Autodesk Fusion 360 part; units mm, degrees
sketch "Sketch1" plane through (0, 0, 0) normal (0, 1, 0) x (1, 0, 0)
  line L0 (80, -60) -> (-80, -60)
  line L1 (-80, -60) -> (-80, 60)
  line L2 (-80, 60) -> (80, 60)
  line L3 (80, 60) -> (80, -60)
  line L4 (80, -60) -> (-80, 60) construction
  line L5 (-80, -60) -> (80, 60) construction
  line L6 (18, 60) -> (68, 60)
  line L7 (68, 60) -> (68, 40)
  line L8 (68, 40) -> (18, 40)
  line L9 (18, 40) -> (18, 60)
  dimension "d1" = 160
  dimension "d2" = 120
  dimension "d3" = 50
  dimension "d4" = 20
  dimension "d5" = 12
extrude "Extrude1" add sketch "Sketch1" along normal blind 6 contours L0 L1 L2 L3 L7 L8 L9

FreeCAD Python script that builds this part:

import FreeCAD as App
import Part
import Sketcher

V = App.Vector

doc = App.newDocument("Part")
body = doc.addObject("PartDesign::Body", "Body")

# Sketch on XZ plane
sketch1 = body.newObject("Sketcher::SketchObject", "Sketch")
sketch1.AttachmentSupport = (doc.getObject("XZ_Plane"), [""])
sketch1.MapMode = "FlatFace"
sketch1.addGeometry(Part.LineSegment(V(-80, 60, 0), V(80, 60, 0)), False)
sketch1.addGeometry(Part.LineSegment(V(80, 60, 0), V(80, -60, 0)), False)
sketch1.addGeometry(Part.LineSegment(V(80, -60, 0), V(68, -60, 0)), False)
sketch1.addGeometry(Part.LineSegment(V(68, -60, 0), V(68, -40, 0)), False)
sketch1.addGeometry(Part.LineSegment(V(68, -40, 0), V(18, -40, 0)), False)
sketch1.addGeometry(Part.LineSegment(V(18, -40, 0), V(18, -60, 0)), False)
sketch1.addGeometry(Part.LineSegment(V(18, -60, 0), V(-80, -60, 0)), False)
sketch1.addGeometry(Part.LineSegment(V(-80, -60, 0), V(-80, 60, 0)), False)
sketch1.addConstraint(Sketcher.Constraint("Coincident", 0, 2, 1, 1))
sketch1.addConstraint(Sketcher.Constraint("Coincident", 1, 2, 2, 1))
sketch1.addConstraint(Sketcher.Constraint("Coincident", 2, 2, 3, 1))
sketch1.addConstraint(Sketcher.Constraint("Coincident", 3, 2, 4, 1))
sketch1.addConstraint(Sketcher.Constraint("Coincident", 4, 2, 5, 1))
sketch1.addConstraint(Sketcher.Constraint("Coincident", 5, 2, 6, 1))
sketch1.addConstraint(Sketcher.Constraint("Coincident", 6, 2, 7, 1))
sketch1.addConstraint(Sketcher.Constraint("Coincident", 7, 2, 0, 1))
sketch1.addConstraint(Sketcher.Constraint("Horizontal", 0))
sketch1.addConstraint(Sketcher.Constraint("Vertical", 1))
sketch1.addConstraint(Sketcher.Constraint("Horizontal", 2))
sketch1.addConstraint(Sketcher.Constraint("Vertical", 3))
sketch1.addConstraint(Sketcher.Constraint("Horizontal", 4))
sketch1.addConstraint(Sketcher.Constraint("Vertical", 5))
sketch1.addConstraint(Sketcher.Constraint("Horizontal", 6))
sketch1.addConstraint(Sketcher.Constraint("Vertical", 7))
sketch1.addConstraint(Sketcher.Constraint("Symmetric", 0, 2, 6, 2, -1, 1))
sketch1.addConstraint(Sketcher.Constraint("Horizontal", 2, 2, 5, 2))
sketch1.addConstraint(Sketcher.Constraint("DistanceX", 0, 1, 0, 2, 160.0))
sketch1.addConstraint(Sketcher.Constraint("DistanceX", 2, 2, 2, 1, 12.0))
sketch1.addConstraint(Sketcher.Constraint("DistanceX", 4, 2, 4, 1, 50.0))
sketch1.addConstraint(Sketcher.Constraint("DistanceY", 1, 2, 1, 1, 120.0))
sketch1.addConstraint(Sketcher.Constraint("DistanceY", 3, 1, 3, 2, 20.0))
pad1 = body.newObject("PartDesign::Pad", "Pad")
pad1.Profile = sketch1
pad1.Length = 6
pad1.Reversed = True

doc.recompute()
